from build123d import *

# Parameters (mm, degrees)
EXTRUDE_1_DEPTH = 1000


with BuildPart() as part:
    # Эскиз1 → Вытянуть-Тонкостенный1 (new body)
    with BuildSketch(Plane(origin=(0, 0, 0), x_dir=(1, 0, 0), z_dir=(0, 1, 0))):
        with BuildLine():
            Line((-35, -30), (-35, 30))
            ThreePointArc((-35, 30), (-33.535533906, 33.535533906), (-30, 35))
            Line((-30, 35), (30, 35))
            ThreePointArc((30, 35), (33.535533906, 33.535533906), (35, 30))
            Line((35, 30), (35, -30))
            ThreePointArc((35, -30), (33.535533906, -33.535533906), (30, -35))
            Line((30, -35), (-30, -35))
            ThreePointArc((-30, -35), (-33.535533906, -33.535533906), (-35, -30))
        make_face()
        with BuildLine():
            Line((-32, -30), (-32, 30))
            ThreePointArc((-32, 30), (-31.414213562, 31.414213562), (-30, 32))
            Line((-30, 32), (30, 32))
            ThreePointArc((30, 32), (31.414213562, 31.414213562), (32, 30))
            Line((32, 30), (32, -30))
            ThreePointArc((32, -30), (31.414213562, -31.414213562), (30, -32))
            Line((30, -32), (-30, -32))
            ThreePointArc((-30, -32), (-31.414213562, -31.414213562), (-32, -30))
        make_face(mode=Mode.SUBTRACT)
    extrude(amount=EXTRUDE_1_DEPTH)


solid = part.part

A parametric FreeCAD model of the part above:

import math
import FreeCAD as App
import Part
import Sketcher
from FreeCAD import Vector

doc = App.newDocument("Part")
body = doc.addObject("PartDesign::Body", "Body")

# Sketch on XZ plane
sketch1 = body.newObject("Sketcher::SketchObject", "Sketch")
sketch1.AttachmentSupport = (doc.getObject("XZ_Plane"), [""])
sketch1.MapMode = "FlatFace"
sketch1.addGeometry([
    Part.LineSegment(Vector(-35, -30, 0), Vector(-35, 30, 0)),  # 0
    Part.ArcOfCircle(Part.Circle(Vector(-30, 30, 0), Vector(0, 0, 1), 5), math.radians(90), math.radians(180)),  # 1
    Part.LineSegment(Vector(-30, 35, 0), Vector(30, 35, 0)),  # 2
    Part.ArcOfCircle(Part.Circle(Vector(30, 30, 0), Vector(0, 0, 1), 5), math.radians(0), math.radians(90)),  # 3
    Part.LineSegment(Vector(35, 30, 0), Vector(35, -30, 0)),  # 4
    Part.ArcOfCircle(Part.Circle(Vector(30, -30, 0), Vector(0, 0, 1), 5), math.radians(-90), math.radians(0)),  # 5
    Part.LineSegment(Vector(30, -35, 0), Vector(-30, -35, 0)),  # 6
    Part.ArcOfCircle(Part.Circle(Vector(-30, -30, 0), Vector(0, 0, 1), 5), math.radians(180), math.radians(270)),  # 7
    Part.LineSegment(Vector(-32, 30, 0), Vector(-32, -30, 0)),  # 8
    Part.ArcOfCircle(Part.Circle(Vector(-30, -30, 0), Vector(0, 0, 1), 2), math.radians(-180), math.radians(-90)),  # 9
    Part.LineSegment(Vector(-30, -32, 0), Vector(30, -32, 0)),  # 10
    Part.ArcOfCircle(Part.Circle(Vector(30, -30, 0), Vector(0, 0, 1), 2), math.radians(-90), math.radians(0)),  # 11
    Part.LineSegment(Vector(32, -30, 0), Vector(32, 30, 0)),  # 12
    Part.ArcOfCircle(Part.Circle(Vector(30, 30, 0), Vector(0, 0, 1), 2), math.radians(0), math.radians(90)),  # 13
    Part.LineSegment(Vector(30, 32, 0), Vector(-30, 32, 0)),  # 14
    Part.ArcOfCircle(Part.Circle(Vector(-30, 30, 0), Vector(0, 0, 1), 2), math.radians(90), math.radians(180)),  # 15
], False)
sketch1.addConstraint([
    Sketcher.Constraint("Tangent", 0, 2, 1, 2),
    Sketcher.Constraint("Tangent", 1, 1, 2, 1),
    Sketcher.Constraint("Tangent", 2, 2, 3, 2),
    Sketcher.Constraint("Tangent", 3, 1, 4, 1),
    Sketcher.Constraint("Tangent", 4, 2, 5, 2),
    Sketcher.Constraint("Tangent", 5, 1, 6, 1),
    Sketcher.Constraint("Tangent", 6, 2, 7, 2),
    Sketcher.Constraint("Tangent", 7, 1, 0, 1),
    Sketcher.Constraint("Tangent", 8, 2, 9, 1),
    Sketcher.Constraint("Tangent", 9, 2, 10, 1),
    Sketcher.Constraint("Tangent", 10, 2, 11, 1),
    Sketcher.Constraint("Tangent", 11, 2, 12, 1),
    Sketcher.Constraint("Tangent", 12, 2, 13, 1),
    Sketcher.Constraint("Tangent", 13, 2, 14, 1),
    Sketcher.Constraint("Tangent", 14, 2, 15, 1),
    Sketcher.Constraint("Tangent", 15, 2, 8, 1),
    Sketcher.Constraint("Vertical", 0),
    Sketcher.Constraint("Horizontal", 2),
    Sketcher.Constraint("Vertical", 4),
    Sketcher.Constraint("Horizontal", 6),
    Sketcher.Constraint("Vertical", 8),
    Sketcher.Constraint("Horizontal", 10),
    Sketcher.Constraint("Vertical", 12),
    Sketcher.Constraint("Horizontal", 14),
    Sketcher.Constraint("Coincident", 9, 3, 7, 3),
    Sketcher.Constraint("Coincident", 11, 3, 5, 3),
    Sketcher.Constraint("Coincident", 13, 3, 3, 3),
    Sketcher.Constraint("Equal", 1, 3),
    Sketcher.Constraint("Equal", 3, 5),
    Sketcher.Constraint("Equal", 5, 7),
    Sketcher.Constraint("Equal", 13, 15),
    Sketcher.Constraint("Symmetric", 1, 3, 5, 3, -1, 1),
    Sketcher.Constraint("Equal", 14, 0),
    Sketcher.Constraint("Radius", 1, 5.0),
    Sketcher.Constraint("Radius", 9, 2.0),
    Sketcher.Constraint("DistanceX", 2, 1, 2, 2, 60.0),
])
pad1 = body.newObject("PartDesign::Pad", "Pad")
pad1.Profile = sketch1
pad1.Length = 1000
pad1.Reversed = True

doc.recompute()
